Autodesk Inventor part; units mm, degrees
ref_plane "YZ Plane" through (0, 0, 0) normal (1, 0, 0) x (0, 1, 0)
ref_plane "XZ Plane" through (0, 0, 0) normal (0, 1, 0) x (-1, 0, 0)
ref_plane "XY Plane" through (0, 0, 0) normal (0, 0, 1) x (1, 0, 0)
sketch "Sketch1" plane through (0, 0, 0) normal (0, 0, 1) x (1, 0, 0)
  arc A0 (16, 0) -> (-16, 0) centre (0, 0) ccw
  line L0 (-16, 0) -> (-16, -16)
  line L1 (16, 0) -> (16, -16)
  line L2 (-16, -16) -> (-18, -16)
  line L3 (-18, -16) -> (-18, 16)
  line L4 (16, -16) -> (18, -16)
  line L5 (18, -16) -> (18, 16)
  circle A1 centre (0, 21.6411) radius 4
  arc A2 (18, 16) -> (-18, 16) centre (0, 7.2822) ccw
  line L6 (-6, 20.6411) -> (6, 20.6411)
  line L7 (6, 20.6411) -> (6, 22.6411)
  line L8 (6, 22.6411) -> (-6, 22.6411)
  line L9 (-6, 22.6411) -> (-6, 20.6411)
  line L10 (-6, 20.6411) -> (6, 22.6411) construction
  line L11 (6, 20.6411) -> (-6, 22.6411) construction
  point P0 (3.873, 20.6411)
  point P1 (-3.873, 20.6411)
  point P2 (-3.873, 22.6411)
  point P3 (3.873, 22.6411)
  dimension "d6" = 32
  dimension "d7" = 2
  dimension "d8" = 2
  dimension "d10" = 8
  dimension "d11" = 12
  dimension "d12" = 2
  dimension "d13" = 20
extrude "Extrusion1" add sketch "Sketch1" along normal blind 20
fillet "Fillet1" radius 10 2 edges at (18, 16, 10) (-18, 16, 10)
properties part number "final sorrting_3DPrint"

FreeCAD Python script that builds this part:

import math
import FreeCAD as App
import Part
import Sketcher
from FreeCAD import Vector
Q = App.Units.Quantity


def edges_at(feature, points):
    """Names of the edges that pass closest to the given points."""
    edges = feature.Shape.Edges
    near = lambda p: min(range(len(edges)), key=lambda i: edges[i].distToShape(Part.Vertex(*p))[0])
    return sorted({f"Edge{near(p) + 1}" for p in points})

doc = App.newDocument("Part")
body = doc.addObject("PartDesign::Body", "Body")

# Sketch on XY plane
sketch1 = doc.addObject("Sketcher::SketchObject", "Sketch")
body.addObject(sketch1)
sketch1.AttachmentSupport = (doc.XY_Plane, [""])
sketch1.MapMode = "FlatFace"
sketch1.addGeometry(Part.ArcOfCircle(Part.Circle(Vector(0, 0, 0), Vector(0, 0, 1), 16), math.radians(0), math.radians(180)), False)
sketch1.addGeometry(Part.LineSegment(Vector(16, 0, 0), Vector(16, -16, 0)), False)
sketch1.addGeometry(Part.LineSegment(Vector(16, -16, 0), Vector(18, -16, 0)), False)
sketch1.addGeometry(Part.LineSegment(Vector(18, -16, 0), Vector(18, 16, 0)), False)
sketch1.addGeometry(Part.ArcOfCircle(Part.Circle(Vector(0, 7.3, 0), Vector(0, 0, 1), 20), math.radians(26), math.radians(154)), False)
sketch1.addGeometry(Part.LineSegment(Vector(-18, 16, 0), Vector(-18, -16, 0)), False)
sketch1.addGeometry(Part.LineSegment(Vector(-18, -16, 0), Vector(-16, -16, 0)), False)
sketch1.addGeometry(Part.LineSegment(Vector(-16, -16, 0), Vector(-16, 0, 0)), False)
sketch1.addGeometry(Part.ArcOfCircle(Part.Circle(Vector(0, 21.6, 0), Vector(0, 0, 1), 4), math.radians(14), math.radians(166)), False)
sketch1.addGeometry(Part.LineSegment(Vector(3.9, 22.6, 0), Vector(6, 22.6, 0)), False)
sketch1.addGeometry(Part.LineSegment(Vector(6, 22.6, 0), Vector(6, 20.6, 0)), False)
sketch1.addGeometry(Part.LineSegment(Vector(6, 20.6, 0), Vector(3.9, 20.6, 0)), False)
sketch1.addGeometry(Part.ArcOfCircle(Part.Circle(Vector(0, 21.6, 0), Vector(0, 0, 1), 4), math.radians(-166), math.radians(-14)), False)
sketch1.addGeometry(Part.LineSegment(Vector(-3.9, 20.6, 0), Vector(-6, 20.6, 0)), False)
sketch1.addGeometry(Part.LineSegment(Vector(-6, 20.6, 0), Vector(-6, 22.6, 0)), False)
sketch1.addGeometry(Part.LineSegment(Vector(-6, 22.6, 0), Vector(-3.9, 22.6, 0)), False)
sketch1.addConstraint(Sketcher.Constraint("Tangent", 0, 1, 1, 1))
sketch1.addConstraint(Sketcher.Constraint("Coincident", 1, 2, 2, 1))
sketch1.addConstraint(Sketcher.Constraint("Coincident", 2, 2, 3, 1))
sketch1.addConstraint(Sketcher.Constraint("Coincident", 3, 2, 4, 1))
sketch1.addConstraint(Sketcher.Constraint("Coincident", 4, 2, 5, 1))
sketch1.addConstraint(Sketcher.Constraint("Coincident", 5, 2, 6, 1))
sketch1.addConstraint(Sketcher.Constraint("Coincident", 6, 2, 7, 1))
sketch1.addConstraint(Sketcher.Constraint("Tangent", 7, 2, 0, 2))
sketch1.addConstraint(Sketcher.Constraint("Coincident", 8, 1, 9, 1))
sketch1.addConstraint(Sketcher.Constraint("Coincident", 9, 2, 10, 1))
sketch1.addConstraint(Sketcher.Constraint("Coincident", 10, 2, 11, 1))
sketch1.addConstraint(Sketcher.Constraint("Coincident", 11, 2, 12, 2))
sketch1.addConstraint(Sketcher.Constraint("Coincident", 12, 1, 13, 1))
sketch1.addConstraint(Sketcher.Constraint("Coincident", 13, 2, 14, 1))
sketch1.addConstraint(Sketcher.Constraint("Coincident", 14, 2, 15, 1))
sketch1.addConstraint(Sketcher.Constraint("Coincident", 15, 2, 8, 2))
sketch1.addConstraint(Sketcher.Constraint("Vertical", 1))
sketch1.addConstraint(Sketcher.Constraint("Horizontal", 2))
sketch1.addConstraint(Sketcher.Constraint("Vertical", 3))
sketch1.addConstraint(Sketcher.Constraint("Vertical", 5))
sketch1.addConstraint(Sketcher.Constraint("Horizontal", 6))
sketch1.addConstraint(Sketcher.Constraint("Vertical", 7))
sketch1.addConstraint(Sketcher.Constraint("Horizontal", 9))
sketch1.addConstraint(Sketcher.Constraint("Vertical", 10))
sketch1.addConstraint(Sketcher.Constraint("Horizontal", 11))
sketch1.addConstraint(Sketcher.Constraint("Horizontal", 13))
sketch1.addConstraint(Sketcher.Constraint("Vertical", 14))
sketch1.addConstraint(Sketcher.Constraint("Horizontal", 15))
sketch1.addConstraint(Sketcher.Constraint("Coincident", 0, 3, -1, 1))
sketch1.addConstraint(Sketcher.Constraint("Coincident", 12, 3, 8, 3))
sketch1.addConstraint(Sketcher.Constraint("Equal", 8, 12))
sketch1.addConstraint(Sketcher.Constraint("Symmetric", 2, 2, 4, 2, -1, 1))
sketch1.addConstraint(Sketcher.Constraint("Symmetric", 11, 2, 12, 1, -2))
sketch1.addConstraint(Sketcher.Constraint("Symmetric", 9, 2, 14, 2, -2))
sketch1.addConstraint(Sketcher.Constraint("PointOnObject", 4, 3, -2))
sketch1.addConstraint(Sketcher.Constraint("Horizontal", 2, 2, 5, 2))
sketch1.addConstraint(Sketcher.Constraint("Vertical", 8, 1, 11, 2))
sketch1.addConstraint(Sketcher.Constraint("Equal", 6, 10))
sketch1.addConstraint(Sketcher.Constraint("Radius", 0, Q("16 mm")))
sketch1.addConstraint(Sketcher.Constraint("Radius", 4, Q("20 mm")))
sketch1.addConstraint(Sketcher.Constraint("Radius", 8, Q("4 mm")))
sketch1.addConstraint(Sketcher.Constraint("DistanceX", 2, 1, 2, 2, Q("2 mm")))
sketch1.addConstraint(Sketcher.Constraint("DistanceY", 3, 1, 3, 2, Q("32 mm")))
sketch1.addConstraint(Sketcher.Constraint("DistanceX", 9, 2, 3, 2, Q("12 mm")))
sketch1.addConstraint(Sketcher.Constraint("DistanceY", -1, 1, 8, 3, Q("21.641 mm")))
pad1 = doc.addObject("PartDesign::Pad", "Pad")
body.addObject(pad1)
pad1.Profile = sketch1
pad1.Length = 20
doc.recompute()

fillet = doc.addObject("PartDesign::Fillet", "Fillet")
body.addObject(fillet)
fillet.Base = (pad1, edges_at(pad1, [(18, 16, 10), (-18, 16, 10)]))
fillet.Radius = 10

doc.recompute()
